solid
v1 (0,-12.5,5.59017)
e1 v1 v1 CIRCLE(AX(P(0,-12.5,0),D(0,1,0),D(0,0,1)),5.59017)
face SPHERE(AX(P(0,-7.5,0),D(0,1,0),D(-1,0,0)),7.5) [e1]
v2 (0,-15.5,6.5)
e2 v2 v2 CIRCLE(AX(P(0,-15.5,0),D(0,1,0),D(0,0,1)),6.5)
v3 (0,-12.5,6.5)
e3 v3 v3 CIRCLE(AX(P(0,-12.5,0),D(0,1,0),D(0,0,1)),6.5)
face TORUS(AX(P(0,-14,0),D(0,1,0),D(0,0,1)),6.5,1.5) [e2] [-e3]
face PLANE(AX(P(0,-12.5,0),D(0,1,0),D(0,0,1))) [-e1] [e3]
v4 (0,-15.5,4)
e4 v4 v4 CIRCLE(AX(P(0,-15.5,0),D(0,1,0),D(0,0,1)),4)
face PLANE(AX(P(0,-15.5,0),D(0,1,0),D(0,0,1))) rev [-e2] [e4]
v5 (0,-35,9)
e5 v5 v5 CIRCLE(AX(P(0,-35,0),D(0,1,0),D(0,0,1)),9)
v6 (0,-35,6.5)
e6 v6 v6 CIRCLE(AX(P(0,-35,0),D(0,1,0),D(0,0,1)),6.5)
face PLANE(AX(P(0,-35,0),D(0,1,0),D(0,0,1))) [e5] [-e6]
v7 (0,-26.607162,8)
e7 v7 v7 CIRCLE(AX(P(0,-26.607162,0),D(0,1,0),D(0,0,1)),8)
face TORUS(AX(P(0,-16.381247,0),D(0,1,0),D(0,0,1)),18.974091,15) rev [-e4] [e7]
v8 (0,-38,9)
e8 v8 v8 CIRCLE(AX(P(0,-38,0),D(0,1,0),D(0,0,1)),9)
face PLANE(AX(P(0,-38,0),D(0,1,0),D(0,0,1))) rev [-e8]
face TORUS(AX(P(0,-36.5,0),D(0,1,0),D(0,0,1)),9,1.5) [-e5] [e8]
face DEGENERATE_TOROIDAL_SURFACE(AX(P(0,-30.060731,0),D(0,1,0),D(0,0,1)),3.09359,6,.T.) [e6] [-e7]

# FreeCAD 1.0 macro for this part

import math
import FreeCAD as App
import Part
import Sketcher

doc = App.newDocument("Part")
body = doc.addObject("PartDesign::Body", "Body")

sketch1 = body.newObject("Sketcher::SketchObject", "Sketch")
sketch1.AttachmentSupport = (doc.getObject("XY_Plane"), [""])
sketch1.MapMode = "FlatFace"
sketch1.addGeometry([
    Part.ArcOfCircle(Part.Circle(App.Vector(0, -7.5, 0), App.Vector(0, 0, 1), 7.5), math.radians(90), math.radians(222)),
    Part.LineSegment(App.Vector(-5.6, -12.5, 0), App.Vector(-6.5, -12.5, 0)),
    Part.ArcOfCircle(Part.Circle(App.Vector(-6.5, -14, 0), App.Vector(0, 0, 1), 1.5), math.radians(90), math.radians(270)),
    Part.LineSegment(App.Vector(-6.5, -15.5, 0), App.Vector(-4, -15.5, 0)),
    Part.ArcOfCircle(Part.Circle(App.Vector(-19, -16.4, 0), App.Vector(0, 0, 1), 15), math.radians(-43), math.radians(3)),
    Part.ArcOfCircle(Part.Circle(App.Vector(-3.1, -30.1, 0), App.Vector(0, 0, 1), 6), math.radians(145), math.radians(235)),
    Part.LineSegment(App.Vector(-6.5, -35, 0), App.Vector(-9, -35, 0)),
    Part.ArcOfCircle(Part.Circle(App.Vector(-9, -36.5, 0), App.Vector(0, 0, 1), 1.5), math.radians(90), math.radians(270)),
    Part.LineSegment(App.Vector(-9, -38, 0), App.Vector(0, -38, 0)),
    Part.LineSegment(App.Vector(0, -38, 0), App.Vector(0, 0, 0)),
], False)
sketch1.addConstraint([
    Sketcher.Constraint("Coincident", 0, 2, 1, 1),
    Sketcher.Constraint("Tangent", 1, 2, 2, 1),
    Sketcher.Constraint("Tangent", 2, 2, 3, 1),
    Sketcher.Constraint("Coincident", 3, 2, 4, 2),
    Sketcher.Constraint("Coincident", 4, 1, 5, 1),
    Sketcher.Constraint("Coincident", 5, 2, 6, 1),
    Sketcher.Constraint("Tangent", 6, 2, 7, 1),
    Sketcher.Constraint("Tangent", 7, 2, 8, 1),
    Sketcher.Constraint("Coincident", 8, 2, 9, 1),
    Sketcher.Constraint("Coincident", 9, 2, 0, 1),
    Sketcher.Constraint("Horizontal", 1),
    Sketcher.Constraint("Horizontal", 3),
    Sketcher.Constraint("Horizontal", 6),
    Sketcher.Constraint("Horizontal", 8),
    Sketcher.Constraint("Vertical", 9),
    Sketcher.Constraint("Coincident", 9, 2, -1, 1),
    Sketcher.Constraint("Equal", 2, 7),
    Sketcher.Constraint("PointOnObject", 0, 3, -2),
    Sketcher.Constraint("Vertical", 2, 2, 5, 2),
    Sketcher.Constraint("Equal", 3, 6),
    Sketcher.Constraint("Radius", 4, 15.0),
    Sketcher.Constraint("Radius", 5, 6.0),
    Sketcher.Constraint("Radius", 0, 7.5),
    Sketcher.Constraint("Radius", 2, 1.5),
    Sketcher.Constraint("DistanceX", 8, 1, 8, 2, 9.0),
    Sketcher.Constraint("DistanceY", 9, 1, 9, 2, 38.0),
    Sketcher.Constraint("DistanceX", 3, 1, 3, 2, 2.5),
    Sketcher.Constraint("DistanceY", 2, 3, -1, 1, 14.0),
    Sketcher.Constraint("DistanceX", 4, 1, -1, 1, 8.0),
    Sketcher.Constraint("DistanceX", 4, 3, 5, 3, 15.880501),
])
revolution = body.newObject("PartDesign::Revolution", "Revolution")
revolution.Profile = sketch1
revolution.ReferenceAxis = (sketch1, ["V_Axis"])
revolution.Angle = 360

doc.recompute()
